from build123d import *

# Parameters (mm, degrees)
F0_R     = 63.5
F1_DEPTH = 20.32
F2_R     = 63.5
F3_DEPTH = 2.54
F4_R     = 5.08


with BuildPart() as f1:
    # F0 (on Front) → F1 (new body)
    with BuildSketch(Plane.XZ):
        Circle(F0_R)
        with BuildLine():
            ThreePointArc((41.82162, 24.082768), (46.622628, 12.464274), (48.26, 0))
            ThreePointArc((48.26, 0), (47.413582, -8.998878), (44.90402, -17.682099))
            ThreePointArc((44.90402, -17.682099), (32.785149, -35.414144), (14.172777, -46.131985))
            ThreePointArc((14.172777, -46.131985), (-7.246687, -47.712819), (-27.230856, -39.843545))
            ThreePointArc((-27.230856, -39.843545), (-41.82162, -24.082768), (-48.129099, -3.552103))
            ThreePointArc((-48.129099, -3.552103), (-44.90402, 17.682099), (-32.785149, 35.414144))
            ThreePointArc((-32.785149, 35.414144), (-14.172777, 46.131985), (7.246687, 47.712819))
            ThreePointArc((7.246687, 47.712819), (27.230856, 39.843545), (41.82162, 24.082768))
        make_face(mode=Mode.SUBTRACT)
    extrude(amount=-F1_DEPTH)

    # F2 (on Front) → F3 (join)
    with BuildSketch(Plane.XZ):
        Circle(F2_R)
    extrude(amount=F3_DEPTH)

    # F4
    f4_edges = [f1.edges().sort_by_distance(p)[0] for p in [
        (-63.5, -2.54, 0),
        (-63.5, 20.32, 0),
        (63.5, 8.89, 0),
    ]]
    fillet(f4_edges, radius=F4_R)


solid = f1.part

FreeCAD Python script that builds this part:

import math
import FreeCAD as App
import Part
import Sketcher

V = App.Vector
Q = App.Units.Quantity


def edges_at(feature, points):
    """Names of the edges that pass closest to the given points."""
    edges = feature.Shape.Edges
    near = lambda p: min(range(len(edges)), key=lambda i: edges[i].distToShape(Part.Vertex(*p))[0])
    return sorted({f"Edge{near(p) + 1}" for p in points})

doc = App.newDocument("Part")
body = doc.addObject("PartDesign::Body", "Body")

# Sketch on XZ plane
sketch1 = body.newObject("Sketcher::SketchObject", "Sketch")
sketch1.AttachmentSupport = (doc.getObject("XZ_Plane"), [""])
sketch1.MapMode = "FlatFace"
sketch1.addGeometry(Part.Circle(V(0, 0, 0), V(0, 0, 1), 63.5), False)
sketch1.addGeometry(Part.ArcOfCircle(Part.Circle(V(0.000001, 0, 0), V(0, 0, 1), 48.259999), math.radians(29.935271), math.radians(81.363843)), False)
sketch1.addGeometry(Part.ArcOfCircle(Part.Circle(V(-0.000012, -0.000003, 0), V(0, 0, 1), 48.260012), math.radians(0.000003), math.radians(29.935267)), False)
sketch1.addGeometry(Part.ArcOfCircle(Part.Circle(V(-0.000032, 0.000005, 0), V(0, 0, 1), 48.260032), math.radians(-21.493292), math.radians(-0.000006)), False)
sketch1.addGeometry(Part.ArcOfCircle(Part.Circle(V(-0.000004, 0.000004, 0), V(0, 0, 1), 48.260005), math.radians(-72.921869), math.radians(-21.493303)), False)
sketch1.addGeometry(Part.ArcOfCircle(Part.Circle(V(0.000001, 0.000005, 0), V(0, 0, 1), 48.260005), math.radians(-124.350441), math.radians(-72.921875)), False)
sketch1.addGeometry(Part.ArcOfCircle(Part.Circle(V(-0.000001, -0.000001, 0), V(0, 0, 1), 48.259999), math.radians(-175.779016), math.radians(-124.350443)), False)
sketch1.addGeometry(Part.ArcOfCircle(Part.Circle(V(-0.000004, 0.000001, 0), V(0, 0, 1), 48.259996), math.radians(132.792412), math.radians(184.220987)), False)
sketch1.addGeometry(Part.ArcOfCircle(Part.Circle(V(-0.000002, 0.000007, 0), V(0, 0, 1), 48.259993), math.radians(81.363839), math.radians(132.792418)), False)
sketch1.addConstraint(Sketcher.Constraint("Coincident", 1, 1, 2, 2))
sketch1.addConstraint(Sketcher.Constraint("Coincident", 2, 1, 3, 2))
sketch1.addConstraint(Sketcher.Constraint("Coincident", 3, 1, 4, 2))
sketch1.addConstraint(Sketcher.Constraint("Coincident", 4, 1, 5, 2))
sketch1.addConstraint(Sketcher.Constraint("Coincident", 5, 1, 6, 2))
sketch1.addConstraint(Sketcher.Constraint("Coincident", 6, 1, 7, 2))
sketch1.addConstraint(Sketcher.Constraint("Coincident", 7, 1, 8, 2))
sketch1.addConstraint(Sketcher.Constraint("Coincident", 8, 1, 1, 2))
sketch1.addConstraint(Sketcher.Constraint("Coincident", 0, 3, -1, 1))
sketch1.addConstraint(Sketcher.Constraint("Coincident", 1, 3, -1, 1))
sketch1.addConstraint(Sketcher.Constraint("Coincident", 4, 3, -1, 1))
sketch1.addConstraint(Sketcher.Constraint("Coincident", 5, 3, -1, 1))
sketch1.addConstraint(Sketcher.Constraint("Coincident", 6, 3, -1, 1))
sketch1.addConstraint(Sketcher.Constraint("Coincident", 7, 3, -1, 1))
sketch1.addConstraint(Sketcher.Constraint("Coincident", 8, 3, -1, 1))
sketch1.addConstraint(Sketcher.Constraint("PointOnObject", 2, 1, -1))
sketch1.addConstraint(Sketcher.Constraint("Diameter", 0, Q("5 in")))
sketch1.addConstraint(Sketcher.Constraint("Radius", 1, Q("1.9 in")))
sketch1.addConstraint(Sketcher.Constraint("DistanceX", -1, 1, 2, 1, Q("1.9 in")))
sketch1.addConstraint(Sketcher.Constraint("Radius", 2, Q("48.260012 mm")))
sketch1.addConstraint(Sketcher.Constraint("Radius", 3, Q("48.260032 mm")))
sketch1.addConstraint(Sketcher.Constraint("DistanceY", 7, 1, 8, 1, Q("0.4841998 in")))
sketch1.addConstraint(Sketcher.Constraint("DistanceY", 3, 1, -1, 1, Q("17.682099 mm")))
sketch1.addConstraint(Sketcher.Constraint("DistanceX", 6, 1, -1, 1, Q("48.129099 mm")))
sketch1.addConstraint(Sketcher.Constraint("DistanceX", 1, 1, 3, 1, Q("3.0824 mm")))
sketch1.addConstraint(Sketcher.Constraint("DistanceX", 7, 1, -1, 1, Q("32.785149 mm")))
sketch1.addConstraint(Sketcher.Constraint("DistanceX", 6, 3, 4, 1, Q("14.172778 mm")))
sketch1.addConstraint(Sketcher.Constraint("DistanceY", 4, 1, 5, 1, Q("6.28844 mm")))
pad1 = body.newObject("PartDesign::Pad", "Pad")
pad1.Profile = sketch1
pad1.Length = Q("0.8 in")
pad1.Reversed = True

# Sketch on XZ plane
sketch2 = body.newObject("Sketcher::SketchObject", "Sketch001")
sketch2.AttachmentSupport = (doc.getObject("XZ_Plane"), [""])
sketch2.MapMode = "FlatFace"
sketch2.addGeometry(Part.Circle(V(0, 0, 0), V(0, 0, 1), 63.5), False)
sketch2.addConstraint(Sketcher.Constraint("Coincident", 0, 3, -1, 1))
sketch2.addConstraint(Sketcher.Constraint("Diameter", 0, Q("5 in")))
pad2 = body.newObject("PartDesign::Pad", "Pad001")
pad2.Profile = sketch2
pad2.Length = Q("0.1 in")
doc.recompute()

fillet = body.newObject("PartDesign::Fillet", "Fillet")
fillet.Base = (pad2, edges_at(pad2, [(-63.5, -2.54, 0), (-63.5, 20.32, 0), (63.5, 10.16, 0)]))
fillet.Radius = Q("0.2 in")

doc.recompute()
